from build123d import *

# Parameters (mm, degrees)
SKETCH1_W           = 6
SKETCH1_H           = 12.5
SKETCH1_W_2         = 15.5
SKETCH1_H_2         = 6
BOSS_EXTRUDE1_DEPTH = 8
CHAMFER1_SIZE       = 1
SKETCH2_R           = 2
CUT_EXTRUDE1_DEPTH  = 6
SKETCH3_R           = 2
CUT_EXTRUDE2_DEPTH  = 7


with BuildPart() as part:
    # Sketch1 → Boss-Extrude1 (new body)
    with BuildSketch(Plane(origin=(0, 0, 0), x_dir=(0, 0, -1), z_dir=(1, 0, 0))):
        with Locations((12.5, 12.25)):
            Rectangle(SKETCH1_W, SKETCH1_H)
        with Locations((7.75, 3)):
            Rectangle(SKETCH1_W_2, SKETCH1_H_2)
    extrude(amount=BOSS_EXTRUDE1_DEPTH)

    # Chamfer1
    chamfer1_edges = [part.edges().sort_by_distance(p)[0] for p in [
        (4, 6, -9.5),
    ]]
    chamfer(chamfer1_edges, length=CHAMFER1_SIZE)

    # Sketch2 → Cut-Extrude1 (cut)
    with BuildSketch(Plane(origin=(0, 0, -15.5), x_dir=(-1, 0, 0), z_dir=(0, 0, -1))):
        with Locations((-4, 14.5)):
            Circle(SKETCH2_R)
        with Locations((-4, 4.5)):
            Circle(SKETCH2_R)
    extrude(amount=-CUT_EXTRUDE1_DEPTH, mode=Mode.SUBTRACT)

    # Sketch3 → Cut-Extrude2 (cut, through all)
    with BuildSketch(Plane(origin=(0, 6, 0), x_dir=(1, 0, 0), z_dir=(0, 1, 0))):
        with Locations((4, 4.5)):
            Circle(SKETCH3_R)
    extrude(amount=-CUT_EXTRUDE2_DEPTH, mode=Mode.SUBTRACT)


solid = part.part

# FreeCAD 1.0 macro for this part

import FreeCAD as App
import Part
import Sketcher
Q = App.Units.Quantity


def edges_at(feature, points):
    """Names of the edges that pass closest to the given points."""
    edges = feature.Shape.Edges
    near = lambda p: min(range(len(edges)), key=lambda i: edges[i].distToShape(Part.Vertex(*p))[0])
    return sorted({f"Edge{near(p) + 1}" for p in points})

doc = App.newDocument("Part")
body = doc.addObject("PartDesign::Body", "Body")

sketch1 = body.newObject("Sketcher::SketchObject", "Sketch")
sketch1.AttachmentSupport = (doc.getObject("YZ_Plane"), [""])
sketch1.MapMode = "FlatFace"
sketch1.addGeometry([
    Part.LineSegment(App.Vector(18.5, -9.5, 0), App.Vector(6, -9.5, 0)),
    Part.LineSegment(App.Vector(6, -9.5, 0), App.Vector(6, 0, 0)),
    Part.LineSegment(App.Vector(6, 0, 0), App.Vector(0, 0, 0)),
    Part.LineSegment(App.Vector(0, 0, 0), App.Vector(0, -15.5, 0)),
    Part.LineSegment(App.Vector(0, -15.5, 0), App.Vector(18.5, -15.5, 0)),
    Part.LineSegment(App.Vector(18.5, -15.5, 0), App.Vector(18.5, -9.5, 0)),
], False)
sketch1.addConstraint([
    Sketcher.Constraint("Coincident", 0, 2, 1, 1),
    Sketcher.Constraint("Coincident", 1, 2, 2, 1),
    Sketcher.Constraint("Coincident", 2, 2, 3, 1),
    Sketcher.Constraint("Coincident", 3, 2, 4, 1),
    Sketcher.Constraint("Coincident", 4, 2, 5, 1),
    Sketcher.Constraint("Coincident", 5, 2, 0, 1),
    Sketcher.Constraint("Horizontal", 0),
    Sketcher.Constraint("Vertical", 1),
    Sketcher.Constraint("Horizontal", 2),
    Sketcher.Constraint("Vertical", 3),
    Sketcher.Constraint("Horizontal", 4),
    Sketcher.Constraint("Vertical", 5),
    Sketcher.Constraint("Coincident", 2, 2, -1, 1),
    Sketcher.Constraint("Equal", 2, 5),
    Sketcher.Constraint("DistanceX", 2, 2, 2, 1, Q("6 mm")),
    Sketcher.Constraint("DistanceX", 0, 2, 0, 1, Q("12.5 mm")),
    Sketcher.Constraint("DistanceY", 1, 1, 1, 2, Q("9.5 mm")),
])
pad1 = body.newObject("PartDesign::Pad", "Pad")
pad1.Profile = sketch1
pad1.Length = 8
doc.recompute()

chamfer = body.newObject("PartDesign::Chamfer", "Chamfer")
chamfer.Base = (pad1, edges_at(pad1, [(4, 6, -9.5)]))
chamfer.Size = 1

sketch2 = body.newObject("Sketcher::SketchObject", "Sketch001")
sketch2.AttachmentSupport = (doc.getObject("XY_Plane"), [""])
sketch2.MapMode = "FlatFace"
sketch2.AttachmentOffset = App.Placement(App.Vector(0, 0, -15.5), App.Rotation())
sketch2.addGeometry([
    Part.Circle(App.Vector(4, 14.5, 0), App.Vector(0, 0, 1), 2),
    Part.Circle(App.Vector(4, 4.5, 0), App.Vector(0, 0, 1), 2),
], False)
sketch2.addConstraint([
    Sketcher.Constraint("Equal", 0, 1),
    Sketcher.Constraint("Vertical", 0, 3, 1, 3),
    Sketcher.Constraint("Diameter", 0, Q("4 mm")),
    Sketcher.Constraint("DistanceX", -1, 1, 0, 3, Q("4 mm")),
    Sketcher.Constraint("DistanceY", 1, 3, 0, 3, Q("10 mm")),
    Sketcher.Constraint("DistanceY", -1, 1, 0, 3, Q("14.5 mm")),
])
pocket1 = body.newObject("PartDesign::Pocket", "Pocket")
pocket1.Profile = sketch2
pocket1.Length = 6
pocket1.Reversed = True

sketch3 = body.newObject("Sketcher::SketchObject", "Sketch002")
sketch3.AttachmentSupport = (doc.getObject("XZ_Plane"), [""])
sketch3.MapMode = "FlatFace"
sketch3.AttachmentOffset = App.Placement(App.Vector(0, 0, -6), App.Rotation())
sketch3.addGeometry(Part.Circle(App.Vector(4, -4.5, 0), App.Vector(0, 0, 1), 2), False)
sketch3.addConstraint([
    Sketcher.Constraint("Diameter", 0, Q("4 mm")),
    Sketcher.Constraint("DistanceX", -1, 1, 0, 3, Q("4 mm")),
    Sketcher.Constraint("DistanceY", 0, 3, -1, 1, Q("4.5 mm")),
])
pocket2 = body.newObject("PartDesign::Pocket", "Pocket001")
pocket2.Profile = sketch3
pocket2.Type = "ThroughAll"
pocket2.Reversed = True

doc.recompute()
